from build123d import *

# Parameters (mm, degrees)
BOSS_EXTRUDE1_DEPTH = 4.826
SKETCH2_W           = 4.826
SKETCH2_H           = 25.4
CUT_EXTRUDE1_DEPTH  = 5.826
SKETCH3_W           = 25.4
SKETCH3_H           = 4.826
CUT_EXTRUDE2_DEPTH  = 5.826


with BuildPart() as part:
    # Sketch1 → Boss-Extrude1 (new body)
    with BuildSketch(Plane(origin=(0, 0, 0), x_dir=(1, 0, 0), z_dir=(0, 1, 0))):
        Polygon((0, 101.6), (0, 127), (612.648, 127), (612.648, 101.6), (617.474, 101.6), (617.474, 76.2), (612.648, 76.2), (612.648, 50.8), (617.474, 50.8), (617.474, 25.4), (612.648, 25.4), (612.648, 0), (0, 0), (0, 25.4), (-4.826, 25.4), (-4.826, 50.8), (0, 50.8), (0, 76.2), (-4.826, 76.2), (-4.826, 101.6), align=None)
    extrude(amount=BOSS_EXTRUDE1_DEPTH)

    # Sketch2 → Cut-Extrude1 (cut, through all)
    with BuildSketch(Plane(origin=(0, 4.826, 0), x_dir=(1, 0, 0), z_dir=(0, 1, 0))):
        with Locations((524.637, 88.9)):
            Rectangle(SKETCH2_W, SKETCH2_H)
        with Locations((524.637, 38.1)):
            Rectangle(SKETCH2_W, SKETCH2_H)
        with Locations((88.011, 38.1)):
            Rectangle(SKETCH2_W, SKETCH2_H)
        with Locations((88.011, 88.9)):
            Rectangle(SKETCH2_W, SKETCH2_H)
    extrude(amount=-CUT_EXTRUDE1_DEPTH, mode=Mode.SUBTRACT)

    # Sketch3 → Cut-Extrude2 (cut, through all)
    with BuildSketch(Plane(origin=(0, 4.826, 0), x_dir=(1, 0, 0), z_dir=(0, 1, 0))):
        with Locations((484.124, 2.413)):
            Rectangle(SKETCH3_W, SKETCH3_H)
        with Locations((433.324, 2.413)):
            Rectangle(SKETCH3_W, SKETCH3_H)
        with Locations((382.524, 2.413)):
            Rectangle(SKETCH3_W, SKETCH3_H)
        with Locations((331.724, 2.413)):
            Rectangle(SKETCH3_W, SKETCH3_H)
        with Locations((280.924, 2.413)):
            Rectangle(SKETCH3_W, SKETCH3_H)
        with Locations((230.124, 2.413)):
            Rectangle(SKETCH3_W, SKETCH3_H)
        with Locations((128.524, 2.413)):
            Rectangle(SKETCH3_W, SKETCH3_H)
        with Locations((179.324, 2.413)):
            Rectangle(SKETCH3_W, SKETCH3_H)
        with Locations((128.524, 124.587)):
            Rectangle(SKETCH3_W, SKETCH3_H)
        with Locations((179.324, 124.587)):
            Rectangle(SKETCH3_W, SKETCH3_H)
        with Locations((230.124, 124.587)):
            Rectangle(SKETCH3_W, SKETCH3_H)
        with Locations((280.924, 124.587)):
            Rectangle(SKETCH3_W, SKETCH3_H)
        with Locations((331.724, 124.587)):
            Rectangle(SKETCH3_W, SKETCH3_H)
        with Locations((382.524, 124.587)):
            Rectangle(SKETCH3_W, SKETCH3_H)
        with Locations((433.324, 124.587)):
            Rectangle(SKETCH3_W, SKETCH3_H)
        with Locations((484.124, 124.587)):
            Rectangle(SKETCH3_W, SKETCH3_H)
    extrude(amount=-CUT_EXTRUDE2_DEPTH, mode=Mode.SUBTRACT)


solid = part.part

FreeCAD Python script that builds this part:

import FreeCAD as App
import Part
import Sketcher
from FreeCAD import Vector
Q = App.Units.Quantity


def add_polygon(sketch, points):
    """Adds a closed chain of lines whose ends are joined by coincident constraints."""
    first, n = sketch.GeometryCount, len(points)
    for a, b in zip(points, points[1:] + points[:1]):
        sketch.addGeometry(Part.LineSegment(App.Vector(*a, 0), App.Vector(*b, 0)), False)
    for i in range(n):
        sketch.addConstraint(Sketcher.Constraint("Coincident", first + i, 2, first + (i + 1) % n, 1))

doc = App.newDocument("Part")
body = doc.addObject("PartDesign::Body", "Body")

sketch1 = body.newObject("Sketcher::SketchObject", "Sketch")
sketch1.AttachmentSupport = (doc.getObject("XZ_Plane"), [""])
sketch1.MapMode = "FlatFace"
add_polygon(sketch1, [(0, -127), (0, -101.6), (-4.826, -101.6), (-4.826, -76.2), (0, -76.2), (0, -50.8), (-4.826, -50.8), (-4.826, -25.4), (0, -25.4), (0, 0), (612.648, 0), (612.648, -25.4), (617.474, -25.4), (617.474, -50.8), (612.648, -50.8), (612.648, -76.2), (617.474, -76.2), (617.474, -101.6), (612.648, -101.6), (612.648, -127)])
sketch1.addConstraint([
    Sketcher.Constraint("Vertical", 0),
    Sketcher.Constraint("Horizontal", 1),
    Sketcher.Constraint("Vertical", 2),
    Sketcher.Constraint("Horizontal", 3),
    Sketcher.Constraint("Vertical", 4),
    Sketcher.Constraint("Horizontal", 5),
    Sketcher.Constraint("Vertical", 6),
    Sketcher.Constraint("Horizontal", 7),
    Sketcher.Constraint("Vertical", 8),
    Sketcher.Constraint("Horizontal", 9),
    Sketcher.Constraint("Vertical", 10),
    Sketcher.Constraint("Horizontal", 11),
    Sketcher.Constraint("Vertical", 12),
    Sketcher.Constraint("Horizontal", 13),
    Sketcher.Constraint("Vertical", 14),
    Sketcher.Constraint("Horizontal", 15),
    Sketcher.Constraint("Vertical", 16),
    Sketcher.Constraint("Horizontal", 17),
    Sketcher.Constraint("Vertical", 18),
    Sketcher.Constraint("Horizontal", 19),
    Sketcher.Constraint("Coincident", 8, 2, -1, 1),
    Sketcher.Constraint("PointOnObject", 0, 2, -2),
    Sketcher.Constraint("PointOnObject", 3, 2, -2),
    Sketcher.Constraint("Horizontal", 7, 2, 10, 2),
    Sketcher.Constraint("Horizontal", 5, 2, 12, 2),
    Sketcher.Constraint("Horizontal", 3, 2, 14, 2),
    Sketcher.Constraint("Horizontal", 1, 2, 16, 2),
    Sketcher.Constraint("Vertical", 2, 2, 5, 2),
    Sketcher.Constraint("Vertical", 10, 2, 13, 2),
    Sketcher.Constraint("Vertical", 12, 2, 15, 2),
    Sketcher.Constraint("Vertical", 14, 2, 17, 2),
    Sketcher.Constraint("Equal", 7, 11),
    Sketcher.Constraint("Equal", 0, 2),
    Sketcher.Constraint("Equal", 2, 4),
    Sketcher.Constraint("Equal", 4, 6),
    Sketcher.Constraint("Equal", 6, 8),
    Sketcher.Constraint("DistanceY", 0, 1, 0, 2, Q("1 in")),
    Sketcher.Constraint("DistanceX", 1, 2, 1, 1, Q("0.19 in")),
    Sketcher.Constraint("DistanceX", 9, 1, 9, 2, Q("24.12 in")),
])
pad1 = body.newObject("PartDesign::Pad", "Pad")
pad1.Profile = sketch1
pad1.Length = Q("0.19 in")
pad1.Reversed = True

sketch2 = body.newObject("Sketcher::SketchObject", "Sketch001")
sketch2.AttachmentSupport = (doc.getObject("XZ_Plane"), [""])
sketch2.MapMode = "FlatFace"
sketch2.AttachmentOffset = App.Placement(Vector(0, 0, -0.19 * 25.4), App.Rotation())
add_polygon(sketch2, [(522.224, -101.6), (522.224, -76.2), (527.05, -76.2), (527.05, -101.6)])
add_polygon(sketch2, [(522.224, -50.8), (522.224, -25.4), (527.05, -25.4), (527.05, -50.8)])
add_polygon(sketch2, [(85.598, -50.8), (85.598, -25.4), (90.424, -25.4), (90.424, -50.8)])
add_polygon(sketch2, [(85.598, -101.6), (85.598, -76.2), (90.424, -76.2), (90.424, -101.6)])
sketch2.addConstraint([
    Sketcher.Constraint("Vertical", 0),
    Sketcher.Constraint("Horizontal", 1),
    Sketcher.Constraint("Vertical", 2),
    Sketcher.Constraint("Horizontal", 3),
    Sketcher.Constraint("Vertical", 4),
    Sketcher.Constraint("Horizontal", 5),
    Sketcher.Constraint("Vertical", 6),
    Sketcher.Constraint("Horizontal", 7),
    Sketcher.Constraint("Vertical", 8),
    Sketcher.Constraint("Horizontal", 9),
    Sketcher.Constraint("Vertical", 10),
    Sketcher.Constraint("Horizontal", 11),
    Sketcher.Constraint("Vertical", 12),
    Sketcher.Constraint("Horizontal", 13),
    Sketcher.Constraint("Vertical", 14),
    Sketcher.Constraint("Horizontal", 15),
    Sketcher.Constraint("Horizontal", 5, 2, 8, 2),
    Sketcher.Constraint("Horizontal", 7, 2, 10, 2),
    Sketcher.Constraint("Horizontal", 1, 2, 12, 2),
    Sketcher.Constraint("Horizontal", 3, 2, 14, 2),
    Sketcher.Constraint("Vertical", 3, 2, 4, 2),
    Sketcher.Constraint("Vertical", 2, 2, 5, 2),
    Sketcher.Constraint("Vertical", 11, 2, 12, 2),
    Sketcher.Constraint("Vertical", 10, 2, 13, 2),
    Sketcher.Constraint("Equal", 7, 9),
    Sketcher.Constraint("Equal", 2, 4),
    Sketcher.Constraint("DistanceY", 0, 1, 0, 2, Q("1 in")),
    Sketcher.Constraint("DistanceY", 0, 2, -1, 1, Q("3 in")),
    Sketcher.Constraint("DistanceY", 4, 2, -1, 1, Q("1 in")),
    Sketcher.Constraint("DistanceX", 9, 2, 4, 2, Q("17 in")),
    Sketcher.Constraint("DistanceX", 1, 1, 1, 2, Q("0.19 in")),
    Sketcher.Constraint("DistanceX", -1, 1, 0, 2, Q("20.56 in")),
])
pocket1 = body.newObject("PartDesign::Pocket", "Pocket")
pocket1.Profile = sketch2
pocket1.Type = "ThroughAll"
pocket1.Reversed = True

sketch3 = body.newObject("Sketcher::SketchObject", "Sketch002")
sketch3.AttachmentSupport = (doc.getObject("XZ_Plane"), [""])
sketch3.MapMode = "FlatFace"
sketch3.AttachmentOffset = App.Placement(Vector(0, 0, -0.19 * 25.4), App.Rotation())
add_polygon(sketch3, [(471.424, -4.826), (471.424, 0), (496.824, 0), (496.824, -4.826)])
add_polygon(sketch3, [(420.624, -4.826), (420.624, 0), (446.024, 0), (446.024, -4.826)])
add_polygon(sketch3, [(369.824, -4.826), (369.824, 0), (395.224, 0), (395.224, -4.826)])
add_polygon(sketch3, [(319.024, -4.826), (319.024, 0), (344.424, 0), (344.424, -4.826)])
add_polygon(sketch3, [(268.224, -4.826), (268.224, 0), (293.624, 0), (293.624, -4.826)])
add_polygon(sketch3, [(217.424, -4.826), (217.424, 0), (242.824, 0), (242.824, -4.826)])
add_polygon(sketch3, [(115.824, -4.826), (115.824, 0), (141.224, 0), (141.224, -4.826)])
add_polygon(sketch3, [(166.624, -4.826), (166.624, 0), (192.024, 0), (192.024, -4.826)])
add_polygon(sketch3, [(115.824, -127), (115.824, -122.174), (141.224, -122.174), (141.224, -127)])
add_polygon(sketch3, [(166.624, -127), (166.624, -122.174), (192.024, -122.174), (192.024, -127)])
add_polygon(sketch3, [(217.424, -127), (217.424, -122.174), (242.824, -122.174), (242.824, -127)])
add_polygon(sketch3, [(268.224, -127), (268.224, -122.174), (293.624, -122.174), (293.624, -127)])
add_polygon(sketch3, [(319.024, -127), (319.024, -122.174), (344.424, -122.174), (344.424, -127)])
add_polygon(sketch3, [(369.824, -127), (369.824, -122.174), (395.224, -122.174), (395.224, -127)])
add_polygon(sketch3, [(420.624, -127), (420.624, -122.174), (446.024, -122.174), (446.024, -127)])
add_polygon(sketch3, [(471.424, -127), (471.424, -122.174), (496.824, -122.174), (496.824, -127)])
sketch3.addConstraint([
    Sketcher.Constraint("Vertical", 0),
    Sketcher.Constraint("Horizontal", 1),
    Sketcher.Constraint("Vertical", 2),
    Sketcher.Constraint("Horizontal", 3),
    Sketcher.Constraint("Vertical", 4),
    Sketcher.Constraint("Horizontal", 5),
    Sketcher.Constraint("Vertical", 6),
    Sketcher.Constraint("Horizontal", 7),
    Sketcher.Constraint("Vertical", 8),
    Sketcher.Constraint("Horizontal", 9),
    Sketcher.Constraint("Vertical", 10),
    Sketcher.Constraint("Horizontal", 11),
    Sketcher.Constraint("Vertical", 12),
    Sketcher.Constraint("Horizontal", 13),
    Sketcher.Constraint("Vertical", 14),
    Sketcher.Constraint("Horizontal", 15),
    Sketcher.Constraint("Vertical", 16),
    Sketcher.Constraint("Horizontal", 17),
    Sketcher.Constraint("Vertical", 18),
    Sketcher.Constraint("Horizontal", 19),
    Sketcher.Constraint("Vertical", 20),
    Sketcher.Constraint("Horizontal", 21),
    Sketcher.Constraint("Vertical", 22),
    Sketcher.Constraint("Horizontal", 23),
    Sketcher.Constraint("Vertical", 24),
    Sketcher.Constraint("Horizontal", 25),
    Sketcher.Constraint("Vertical", 26),
    Sketcher.Constraint("Horizontal", 27),
    Sketcher.Constraint("Vertical", 28),
    Sketcher.Constraint("Horizontal", 29),
    Sketcher.Constraint("Vertical", 30),
    Sketcher.Constraint("Horizontal", 31),
    Sketcher.Constraint("Vertical", 32),
    Sketcher.Constraint("Horizontal", 33),
    Sketcher.Constraint("Vertical", 34),
    Sketcher.Constraint("Horizontal", 35),
    Sketcher.Constraint("Vertical", 36),
    Sketcher.Constraint("Horizontal", 37),
    Sketcher.Constraint("Vertical", 38),
    Sketcher.Constraint("Horizontal", 39),
    Sketcher.Constraint("Vertical", 40),
    Sketcher.Constraint("Horizontal", 41),
    Sketcher.Constraint("Vertical", 42),
    Sketcher.Constraint("Horizontal", 43),
    Sketcher.Constraint("Vertical", 44),
    Sketcher.Constraint("Horizontal", 45),
    Sketcher.Constraint("Vertical", 46),
    Sketcher.Constraint("Horizontal", 47),
    Sketcher.Constraint("Vertical", 48),
    Sketcher.Constraint("Horizontal", 49),
    Sketcher.Constraint("Vertical", 50),
    Sketcher.Constraint("Horizontal", 51),
    Sketcher.Constraint("Vertical", 52),
    Sketcher.Constraint("Horizontal", 53),
    Sketcher.Constraint("Vertical", 54),
    Sketcher.Constraint("Horizontal", 55),
    Sketcher.Constraint("Vertical", 56),
    Sketcher.Constraint("Horizontal", 57),
    Sketcher.Constraint("Vertical", 58),
    Sketcher.Constraint("Horizontal", 59),
    Sketcher.Constraint("Vertical", 60),
    Sketcher.Constraint("Horizontal", 61),
    Sketcher.Constraint("Vertical", 62),
    Sketcher.Constraint("Horizontal", 63),
    Sketcher.Constraint("PointOnObject", 0, 2, -1),
    Sketcher.Constraint("PointOnObject", 4, 2, -1),
    Sketcher.Constraint("PointOnObject", 8, 2, -1),
    Sketcher.Constraint("PointOnObject", 12, 2, -1),
    Sketcher.Constraint("PointOnObject", 16, 2, -1),
    Sketcher.Constraint("PointOnObject", 20, 2, -1),
    Sketcher.Constraint("PointOnObject", 24, 2, -1),
    Sketcher.Constraint("PointOnObject", 28, 2, -1),
    Sketcher.Constraint("Horizontal", 3, 2, 6, 2),
    Sketcher.Constraint("Horizontal", 7, 2, 10, 2),
    Sketcher.Constraint("Horizontal", 11, 2, 14, 2),
    Sketcher.Constraint("Horizontal", 15, 2, 18, 2),
    Sketcher.Constraint("Horizontal", 19, 2, 22, 2),
    Sketcher.Constraint("Horizontal", 23, 2, 26, 2),
    Sketcher.Constraint("Horizontal", 27, 2, 30, 2),
    Sketcher.Constraint("Horizontal", 33, 2, 36, 2),
    Sketcher.Constraint("Horizontal", 35, 2, 38, 2),
    Sketcher.Constraint("Horizontal", 37, 2, 40, 2),
    Sketcher.Constraint("Horizontal", 39, 2, 42, 2),
    Sketcher.Constraint("Horizontal", 41, 2, 44, 2),
    Sketcher.Constraint("Horizontal", 43, 2, 46, 2),
    Sketcher.Constraint("Horizontal", 45, 2, 48, 2),
    Sketcher.Constraint("Horizontal", 47, 2, 50, 2),
    Sketcher.Constraint("Horizontal", 49, 2, 52, 2),
    Sketcher.Constraint("Horizontal", 51, 2, 54, 2),
    Sketcher.Constraint("Horizontal", 53, 2, 56, 2),
    Sketcher.Constraint("Horizontal", 55, 2, 58, 2),
    Sketcher.Constraint("Horizontal", 57, 2, 60, 2),
    Sketcher.Constraint("Horizontal", 59, 2, 62, 2),
    Sketcher.Constraint("Vertical", 27, 2, 32, 2),
    Sketcher.Constraint("Vertical", 26, 2, 33, 2),
    Sketcher.Constraint("Vertical", 31, 2, 36, 2),
    Sketcher.Constraint("Vertical", 30, 2, 37, 2),
    Sketcher.Constraint("Vertical", 23, 2, 40, 2),
    Sketcher.Constraint("Vertical", 22, 2, 41, 2),
    Sketcher.Constraint("Vertical", 19, 2, 44, 2),
    Sketcher.Constraint("Vertical", 18, 2, 45, 2),
    Sketcher.Constraint("Vertical", 15, 2, 48, 2),
    Sketcher.Constraint("Vertical", 14, 2, 49, 2),
    Sketcher.Constraint("Vertical", 11, 2, 52, 2),
    Sketcher.Constraint("Vertical", 10, 2, 53, 2),
    Sketcher.Constraint("Vertical", 7, 2, 56, 2),
    Sketcher.Constraint("Vertical", 6, 2, 57, 2),
    Sketcher.Constraint("Vertical", 3, 2, 60, 2),
    Sketcher.Constraint("Vertical", 2, 2, 61, 2),
    Sketcher.Constraint("Equal", 3, 5),
    Sketcher.Constraint("Equal", 7, 9),
    Sketcher.Constraint("Equal", 11, 13),
    Sketcher.Constraint("Equal", 15, 17),
    Sketcher.Constraint("Equal", 19, 21),
    Sketcher.Constraint("Equal", 23, 25),
    Sketcher.Constraint("Equal", 27, 29),
    Sketcher.Constraint("Equal", 30, 32),
    Sketcher.Constraint("DistanceX", 1, 1, 1, 2, Q("1 in")),
    Sketcher.Constraint("DistanceY", 34, 2, -1, 1, Q("5 in")),
    Sketcher.Constraint("DistanceY", 0, 1, 0, 2, Q("0.19 in")),
    Sketcher.Constraint("DistanceX", -1, 1, 0, 2, Q("18.56 in")),
    Sketcher.Constraint("DistanceX", -1, 1, 4, 2, Q("16.56 in")),
    Sketcher.Constraint("DistanceX", -1, 1, 8, 2, Q("14.56 in")),
    Sketcher.Constraint("DistanceX", -1, 1, 12, 2, Q("12.56 in")),
    Sketcher.Constraint("DistanceX", -1, 1, 16, 2, Q("10.56 in")),
    Sketcher.Constraint("DistanceX", -1, 1, 20, 2, Q("8.56 in")),
    Sketcher.Constraint("DistanceX", -1, 1, 24, 2, Q("4.56 in")),
    Sketcher.Constraint("DistanceX", -1, 1, 28, 2, Q("6.56 in")),
])
pocket2 = body.newObject("PartDesign::Pocket", "Pocket001")
pocket2.Profile = sketch3
pocket2.Type = "ThroughAll"
pocket2.Reversed = True

doc.recompute()
